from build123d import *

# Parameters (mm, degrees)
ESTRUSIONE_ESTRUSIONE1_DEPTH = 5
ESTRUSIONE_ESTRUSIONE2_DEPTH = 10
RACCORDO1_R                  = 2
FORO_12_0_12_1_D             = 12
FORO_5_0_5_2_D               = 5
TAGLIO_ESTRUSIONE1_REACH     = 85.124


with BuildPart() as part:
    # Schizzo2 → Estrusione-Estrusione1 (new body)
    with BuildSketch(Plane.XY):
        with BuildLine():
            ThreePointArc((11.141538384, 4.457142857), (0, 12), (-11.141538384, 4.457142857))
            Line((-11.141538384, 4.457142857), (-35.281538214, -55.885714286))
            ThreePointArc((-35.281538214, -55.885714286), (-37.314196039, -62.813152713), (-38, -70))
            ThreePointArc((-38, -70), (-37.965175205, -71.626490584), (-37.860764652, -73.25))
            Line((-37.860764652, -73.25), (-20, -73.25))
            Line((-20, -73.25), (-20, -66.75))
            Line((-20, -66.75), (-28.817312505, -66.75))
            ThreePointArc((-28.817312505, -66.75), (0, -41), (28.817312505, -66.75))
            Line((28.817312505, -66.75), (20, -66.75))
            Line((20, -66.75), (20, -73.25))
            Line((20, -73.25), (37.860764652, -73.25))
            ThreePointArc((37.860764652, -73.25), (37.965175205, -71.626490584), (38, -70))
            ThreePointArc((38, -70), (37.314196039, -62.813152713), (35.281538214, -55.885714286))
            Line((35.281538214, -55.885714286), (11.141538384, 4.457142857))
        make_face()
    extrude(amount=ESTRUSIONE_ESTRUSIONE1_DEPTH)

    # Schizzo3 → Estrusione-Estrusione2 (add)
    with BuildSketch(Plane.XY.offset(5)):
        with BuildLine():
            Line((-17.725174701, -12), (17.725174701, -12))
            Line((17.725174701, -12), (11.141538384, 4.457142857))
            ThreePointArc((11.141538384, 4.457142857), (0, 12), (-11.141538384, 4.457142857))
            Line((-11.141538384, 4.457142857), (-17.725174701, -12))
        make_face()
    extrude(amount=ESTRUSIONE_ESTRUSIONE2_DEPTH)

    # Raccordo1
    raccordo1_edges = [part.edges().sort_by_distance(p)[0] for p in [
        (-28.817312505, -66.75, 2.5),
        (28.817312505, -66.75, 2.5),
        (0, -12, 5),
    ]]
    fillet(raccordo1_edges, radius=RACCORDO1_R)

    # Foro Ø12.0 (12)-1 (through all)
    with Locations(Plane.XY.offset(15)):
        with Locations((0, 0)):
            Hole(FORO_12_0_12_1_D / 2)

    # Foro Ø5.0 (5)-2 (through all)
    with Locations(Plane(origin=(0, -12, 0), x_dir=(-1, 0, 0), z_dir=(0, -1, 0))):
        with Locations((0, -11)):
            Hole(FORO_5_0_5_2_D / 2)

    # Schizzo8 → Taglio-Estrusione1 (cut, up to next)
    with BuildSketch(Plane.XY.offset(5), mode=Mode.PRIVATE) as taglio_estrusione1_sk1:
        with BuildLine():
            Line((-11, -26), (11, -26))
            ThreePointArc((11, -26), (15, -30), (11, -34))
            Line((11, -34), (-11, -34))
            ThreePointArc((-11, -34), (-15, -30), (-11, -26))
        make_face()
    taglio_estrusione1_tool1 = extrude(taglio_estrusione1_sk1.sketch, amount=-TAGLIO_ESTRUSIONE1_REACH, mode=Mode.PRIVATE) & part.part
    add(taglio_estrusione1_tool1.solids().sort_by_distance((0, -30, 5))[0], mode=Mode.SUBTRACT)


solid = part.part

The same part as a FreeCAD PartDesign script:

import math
import FreeCAD as App
import Part
import Sketcher
from FreeCAD import Vector
Q = App.Units.Quantity


def edges_at(feature, points):
    """Names of the edges that pass closest to the given points."""
    edges = feature.Shape.Edges
    near = lambda p: min(range(len(edges)), key=lambda i: edges[i].distToShape(Part.Vertex(*p))[0])
    return sorted({f"Edge{near(p) + 1}" for p in points})

doc = App.newDocument("Part")
params = doc.addObject("Spreadsheet::Sheet", "Params")
for row, (alias, value) in enumerate([
    ("sketch1_radius", "12 mm"),
    ("sketch1_radius2", "38 mm"),
    ("sketch1_radius3", "29 mm"),
    ("sketch1_height", "6.5 mm"),
    ("pad1_length", "5 mm"),
    ("sketch2_radius", "12 mm"),
    ("pad2_length", "10 mm"),
    ("fillet_radius", "2 mm"),
    ("sketch3_diameter", "12 mm"),
    ("hole_diameter", "12 mm"),
    ("sketch4_diameter", "5 mm"),
    ("hole2_diameter", "5 mm"),
    ("sketch5_radius", "4 mm"),
    ("sketch5_width", "22 mm"),
], start=1):
    params.set(f"A{row}", alias)
    params.set(f"B{row}", "=" + value)
    params.setAlias(f"B{row}", alias)

body = doc.addObject("PartDesign::Body", "Body")

# Sketch on XY plane
sketch1 = body.newObject("Sketcher::SketchObject", "Sketch")
sketch1.AttachmentSupport = (doc.getObject("XY_Plane"), [""])
sketch1.MapMode = "FlatFace"
sketch1.addGeometry([
    Part.ArcOfCircle(Part.Circle(Vector(0, 0, 0), Vector(0, 0, 1), 12), math.radians(21.803748), math.radians(158.196252)),  # 0
    Part.LineSegment(Vector(-11.141538, 4.457143, 0), Vector(-35.281538, -55.885714, 0)),  # 1
    Part.ArcOfCircle(Part.Circle(Vector(0, -70, 0), Vector(0, 0, 1), 38), math.radians(158.196252), math.radians(180)),  # 2
    Part.ArcOfCircle(Part.Circle(Vector(0.000001, -70, 0), Vector(0, 0, 1), 38.000001), math.radians(-180), math.radians(-175.093709)),  # 3
    Part.LineSegment(Vector(-37.860765, -73.25, 0), Vector(-20, -73.25, 0)),  # 4
    Part.LineSegment(Vector(-20, -73.25, 0), Vector(-20, -66.75, 0)),  # 5
    Part.LineSegment(Vector(-20, -66.75, 0), Vector(-28.817313, -66.75, 0)),  # 6
    Part.ArcOfCircle(Part.Circle(Vector(0, -70, 0), Vector(0, 0, 1), 29), math.radians(6.434596), math.radians(173.565404)),  # 7
    Part.LineSegment(Vector(28.817313, -66.75, 0), Vector(20, -66.75, 0)),  # 8
    Part.LineSegment(Vector(20, -66.75, 0), Vector(20, -73.25, 0)),  # 9
    Part.LineSegment(Vector(20, -73.25, 0), Vector(37.860765, -73.25, 0)),  # 10
    Part.ArcOfCircle(Part.Circle(Vector(-0.000001, -70, 0), Vector(0, 0, 1), 38.000001), math.radians(-4.906291), math.radians(0)),  # 11
    Part.ArcOfCircle(Part.Circle(Vector(0, -70, 0), Vector(0, 0, 1), 38), math.radians(0), math.radians(21.803748)),  # 12
    Part.LineSegment(Vector(35.281538, -55.885714, 0), Vector(11.141538, 4.457143, 0)),  # 13
], False)
sketch1.addConstraint([
    Sketcher.Constraint("Tangent", 0, 2, 1, 1),
    Sketcher.Constraint("Tangent", 1, 2, 2, 1),
    Sketcher.Constraint("Tangent", 2, 2, 3, 1),
    Sketcher.Constraint("Coincident", 3, 2, 4, 1),
    Sketcher.Constraint("Coincident", 4, 2, 5, 1),
    Sketcher.Constraint("Coincident", 5, 2, 6, 1),
    Sketcher.Constraint("Coincident", 6, 2, 7, 2),
    Sketcher.Constraint("Coincident", 7, 1, 8, 1),
    Sketcher.Constraint("Coincident", 8, 2, 9, 1),
    Sketcher.Constraint("Coincident", 9, 2, 10, 1),
    Sketcher.Constraint("Coincident", 10, 2, 11, 1),
    Sketcher.Constraint("Tangent", 11, 2, 12, 1),
    Sketcher.Constraint("Tangent", 12, 2, 13, 1),
    Sketcher.Constraint("Tangent", 13, 2, 0, 1),
    Sketcher.Constraint("Horizontal", 4),
    Sketcher.Constraint("Vertical", 5),
    Sketcher.Constraint("Horizontal", 6),
    Sketcher.Constraint("Horizontal", 8),
    Sketcher.Constraint("Vertical", 9),
    Sketcher.Constraint("Horizontal", 10),
    Sketcher.Constraint("Coincident", 0, 3, -1, 1),
    Sketcher.Constraint("Coincident", 7, 3, 2, 3),
    Sketcher.Constraint("Coincident", 11, 3, 2, 3),
    Sketcher.Constraint("Equal", 2, 3),
    Sketcher.Constraint("Equal", 3, 11),
    Sketcher.Constraint("Equal", 11, 12),
    Sketcher.Constraint("Symmetric", 6, 2, 7, 1, -2),
    Sketcher.Constraint("Symmetric", 4, 2, 9, 2, -2),
    Sketcher.Constraint("Horizontal", 12, 3, 2, 2),
    Sketcher.Constraint("Horizontal", 2, 2, 11, 2),
    Sketcher.Constraint("Radius", 0, Q("12 mm")),
    Sketcher.Constraint("Radius", 2, Q("38 mm")),
    Sketcher.Constraint("Radius", 7, Q("29 mm")),
    Sketcher.Constraint("DistanceY", 5, 1, 5, 2, Q("6.5 mm")),
    Sketcher.Constraint("DistanceY", 2, 3, -1, 1, Q("70 mm")),
    Sketcher.Constraint("DistanceX", 4, 2, -1, 1, Q("20 mm")),
    Sketcher.Constraint("DistanceY", 3, 2, -1, 1, Q("73.25 mm")),
])
sketch1.setExpression("Constraints[30]", "Params.sketch1_radius")
sketch1.setExpression("Constraints[31]", "Params.sketch1_radius2")
sketch1.setExpression("Constraints[32]", "Params.sketch1_radius3")
sketch1.setExpression("Constraints[33]", "Params.sketch1_height")
pad1 = body.newObject("PartDesign::Pad", "Pad")
pad1.Profile = sketch1
pad1.setExpression("Length", "Params.pad1_length")

# Sketch on XY plane
sketch2 = body.newObject("Sketcher::SketchObject", "Sketch001")
sketch2.AttachmentSupport = (doc.getObject("XY_Plane"), [""])
sketch2.MapMode = "FlatFace"
sketch2.AttachmentOffset = App.Placement(Vector(0, 0, 5), App.Rotation())
sketch2.addGeometry([
    Part.LineSegment(Vector(-17.725175, -12, 0), Vector(17.725175, -12, 0)),
    Part.LineSegment(Vector(17.725175, -12, 0), Vector(11.141538, 4.457143, 0)),
    Part.ArcOfCircle(Part.Circle(Vector(0, 0, 0), Vector(0, 0, 1), 12), math.radians(21.803748), math.radians(158.196252)),
    Part.LineSegment(Vector(-11.141538, 4.457143, 0), Vector(-17.725175, -12, 0)),
], False)
sketch2.addConstraint([
    Sketcher.Constraint("Coincident", 0, 2, 1, 1),
    Sketcher.Constraint("Tangent", 1, 2, 2, 1),
    Sketcher.Constraint("Tangent", 2, 2, 3, 1),
    Sketcher.Constraint("Coincident", 3, 2, 0, 1),
    Sketcher.Constraint("Horizontal", 0),
    Sketcher.Constraint("Coincident", 2, 3, -1, 1),
    Sketcher.Constraint("Horizontal", 1, 2, 2, 2),
    Sketcher.Constraint("Radius", 2, Q("12 mm")),
    Sketcher.Constraint("DistanceY", 0, 2, -1, 1, Q("12 mm")),
    Sketcher.Constraint("DistanceX", 0, 1, 0, 2, Q("35.450349 mm")),
])
sketch2.setExpression("Constraints[7]", "Params.sketch2_radius")
pad2 = body.newObject("PartDesign::Pad", "Pad001")
pad2.Profile = sketch2
pad2.setExpression("Length", "Params.pad2_length")
doc.recompute()

fillet = body.newObject("PartDesign::Fillet", "Fillet")
fillet.Base = (pad2, edges_at(pad2, [(-28.817, -66.75, 2.5), (28.817, -66.75, 2.5), (0, -12, 5)]))
fillet.setExpression("Radius", "Params.fillet_radius")

# Sketch on XY plane
sketch3 = body.newObject("Sketcher::SketchObject", "Sketch002")
sketch3.AttachmentSupport = (doc.getObject("XY_Plane"), [""])
sketch3.MapMode = "FlatFace"
sketch3.AttachmentOffset = App.Placement(Vector(0, 0, 15), App.Rotation())
sketch3.addGeometry(Part.Circle(Vector(0, 0, 0), Vector(0, 0, 1), 6), False)
sketch3.addConstraint([
    Sketcher.Constraint("Coincident", 0, 3, -1, 1),
    Sketcher.Constraint("Diameter", 0, Q("12 mm")),
])
sketch3.setExpression("Constraints[1]", "Params.sketch3_diameter")
doc.recompute()
hole = body.newObject("PartDesign::Hole", "Hole")
hole.Profile = sketch3
hole.ThreadType = "None"
hole.setExpression("Diameter", "Params.hole_diameter")
hole.DepthType = "ThroughAll"

# Sketch on XZ plane
sketch4 = body.newObject("Sketcher::SketchObject", "Sketch003")
sketch4.AttachmentSupport = (doc.getObject("XZ_Plane"), [""])
sketch4.MapMode = "FlatFace"
sketch4.AttachmentOffset = App.Placement(Vector(0, 0, 12), App.Rotation())
sketch4.addGeometry(Part.Circle(Vector(0, 11, 0), Vector(0, 0, 1), 2.5), False)
sketch4.addConstraint([
    Sketcher.Constraint("PointOnObject", 0, 3, -2),
    Sketcher.Constraint("Diameter", 0, Q("5 mm")),
    Sketcher.Constraint("DistanceY", -1, 1, 0, 3, Q("11 mm")),
])
sketch4.setExpression("Constraints[1]", "Params.sketch4_diameter")
doc.recompute()
hole2 = body.newObject("PartDesign::Hole", "Hole001")
hole2.Profile = sketch4
hole2.ThreadType = "None"
hole2.setExpression("Diameter", "Params.hole2_diameter")
hole2.DepthType = "ThroughAll"

# Sketch on XY plane
sketch5 = body.newObject("Sketcher::SketchObject", "Sketch004")
sketch5.AttachmentSupport = (doc.getObject("XY_Plane"), [""])
sketch5.MapMode = "FlatFace"
sketch5.AttachmentOffset = App.Placement(Vector(0, 0, 5), App.Rotation())
sketch5.addGeometry([
    Part.LineSegment(Vector(11, -26, 0), Vector(-11, -26, 0)),
    Part.ArcOfCircle(Part.Circle(Vector(-11, -30, 0), Vector(0, 0, 1), 4), math.radians(90), math.radians(270)),
    Part.LineSegment(Vector(-11, -34, 0), Vector(11, -34, 0)),
    Part.ArcOfCircle(Part.Circle(Vector(11, -30, 0), Vector(0, 0, 1), 4), math.radians(-90), math.radians(90)),
], False)
sketch5.addConstraint([
    Sketcher.Constraint("Tangent", 0, 2, 1, 1),
    Sketcher.Constraint("Tangent", 1, 2, 2, 1),
    Sketcher.Constraint("Tangent", 2, 2, 3, 1),
    Sketcher.Constraint("Tangent", 3, 2, 0, 1),
    Sketcher.Constraint("Horizontal", 0),
    Sketcher.Constraint("Horizontal", 2),
    Sketcher.Constraint("Radius", 1, Q("4 mm")),
    Sketcher.Constraint("DistanceX", 0, 2, 0, 1, Q("22 mm")),
    Sketcher.Constraint("DistanceX", 1, 3, -1, 1, Q("11 mm")),
    Sketcher.Constraint("DistanceY", 1, 3, -1, 1, Q("30 mm")),
])
sketch5.setExpression("Constraints[6]", "Params.sketch5_radius")
sketch5.setExpression("Constraints[7]", "Params.sketch5_width")
pocket1 = body.newObject("PartDesign::Pocket", "Pocket")
pocket1.Profile = sketch5
pocket1.Type = "UpToFirst"

doc.recompute()
